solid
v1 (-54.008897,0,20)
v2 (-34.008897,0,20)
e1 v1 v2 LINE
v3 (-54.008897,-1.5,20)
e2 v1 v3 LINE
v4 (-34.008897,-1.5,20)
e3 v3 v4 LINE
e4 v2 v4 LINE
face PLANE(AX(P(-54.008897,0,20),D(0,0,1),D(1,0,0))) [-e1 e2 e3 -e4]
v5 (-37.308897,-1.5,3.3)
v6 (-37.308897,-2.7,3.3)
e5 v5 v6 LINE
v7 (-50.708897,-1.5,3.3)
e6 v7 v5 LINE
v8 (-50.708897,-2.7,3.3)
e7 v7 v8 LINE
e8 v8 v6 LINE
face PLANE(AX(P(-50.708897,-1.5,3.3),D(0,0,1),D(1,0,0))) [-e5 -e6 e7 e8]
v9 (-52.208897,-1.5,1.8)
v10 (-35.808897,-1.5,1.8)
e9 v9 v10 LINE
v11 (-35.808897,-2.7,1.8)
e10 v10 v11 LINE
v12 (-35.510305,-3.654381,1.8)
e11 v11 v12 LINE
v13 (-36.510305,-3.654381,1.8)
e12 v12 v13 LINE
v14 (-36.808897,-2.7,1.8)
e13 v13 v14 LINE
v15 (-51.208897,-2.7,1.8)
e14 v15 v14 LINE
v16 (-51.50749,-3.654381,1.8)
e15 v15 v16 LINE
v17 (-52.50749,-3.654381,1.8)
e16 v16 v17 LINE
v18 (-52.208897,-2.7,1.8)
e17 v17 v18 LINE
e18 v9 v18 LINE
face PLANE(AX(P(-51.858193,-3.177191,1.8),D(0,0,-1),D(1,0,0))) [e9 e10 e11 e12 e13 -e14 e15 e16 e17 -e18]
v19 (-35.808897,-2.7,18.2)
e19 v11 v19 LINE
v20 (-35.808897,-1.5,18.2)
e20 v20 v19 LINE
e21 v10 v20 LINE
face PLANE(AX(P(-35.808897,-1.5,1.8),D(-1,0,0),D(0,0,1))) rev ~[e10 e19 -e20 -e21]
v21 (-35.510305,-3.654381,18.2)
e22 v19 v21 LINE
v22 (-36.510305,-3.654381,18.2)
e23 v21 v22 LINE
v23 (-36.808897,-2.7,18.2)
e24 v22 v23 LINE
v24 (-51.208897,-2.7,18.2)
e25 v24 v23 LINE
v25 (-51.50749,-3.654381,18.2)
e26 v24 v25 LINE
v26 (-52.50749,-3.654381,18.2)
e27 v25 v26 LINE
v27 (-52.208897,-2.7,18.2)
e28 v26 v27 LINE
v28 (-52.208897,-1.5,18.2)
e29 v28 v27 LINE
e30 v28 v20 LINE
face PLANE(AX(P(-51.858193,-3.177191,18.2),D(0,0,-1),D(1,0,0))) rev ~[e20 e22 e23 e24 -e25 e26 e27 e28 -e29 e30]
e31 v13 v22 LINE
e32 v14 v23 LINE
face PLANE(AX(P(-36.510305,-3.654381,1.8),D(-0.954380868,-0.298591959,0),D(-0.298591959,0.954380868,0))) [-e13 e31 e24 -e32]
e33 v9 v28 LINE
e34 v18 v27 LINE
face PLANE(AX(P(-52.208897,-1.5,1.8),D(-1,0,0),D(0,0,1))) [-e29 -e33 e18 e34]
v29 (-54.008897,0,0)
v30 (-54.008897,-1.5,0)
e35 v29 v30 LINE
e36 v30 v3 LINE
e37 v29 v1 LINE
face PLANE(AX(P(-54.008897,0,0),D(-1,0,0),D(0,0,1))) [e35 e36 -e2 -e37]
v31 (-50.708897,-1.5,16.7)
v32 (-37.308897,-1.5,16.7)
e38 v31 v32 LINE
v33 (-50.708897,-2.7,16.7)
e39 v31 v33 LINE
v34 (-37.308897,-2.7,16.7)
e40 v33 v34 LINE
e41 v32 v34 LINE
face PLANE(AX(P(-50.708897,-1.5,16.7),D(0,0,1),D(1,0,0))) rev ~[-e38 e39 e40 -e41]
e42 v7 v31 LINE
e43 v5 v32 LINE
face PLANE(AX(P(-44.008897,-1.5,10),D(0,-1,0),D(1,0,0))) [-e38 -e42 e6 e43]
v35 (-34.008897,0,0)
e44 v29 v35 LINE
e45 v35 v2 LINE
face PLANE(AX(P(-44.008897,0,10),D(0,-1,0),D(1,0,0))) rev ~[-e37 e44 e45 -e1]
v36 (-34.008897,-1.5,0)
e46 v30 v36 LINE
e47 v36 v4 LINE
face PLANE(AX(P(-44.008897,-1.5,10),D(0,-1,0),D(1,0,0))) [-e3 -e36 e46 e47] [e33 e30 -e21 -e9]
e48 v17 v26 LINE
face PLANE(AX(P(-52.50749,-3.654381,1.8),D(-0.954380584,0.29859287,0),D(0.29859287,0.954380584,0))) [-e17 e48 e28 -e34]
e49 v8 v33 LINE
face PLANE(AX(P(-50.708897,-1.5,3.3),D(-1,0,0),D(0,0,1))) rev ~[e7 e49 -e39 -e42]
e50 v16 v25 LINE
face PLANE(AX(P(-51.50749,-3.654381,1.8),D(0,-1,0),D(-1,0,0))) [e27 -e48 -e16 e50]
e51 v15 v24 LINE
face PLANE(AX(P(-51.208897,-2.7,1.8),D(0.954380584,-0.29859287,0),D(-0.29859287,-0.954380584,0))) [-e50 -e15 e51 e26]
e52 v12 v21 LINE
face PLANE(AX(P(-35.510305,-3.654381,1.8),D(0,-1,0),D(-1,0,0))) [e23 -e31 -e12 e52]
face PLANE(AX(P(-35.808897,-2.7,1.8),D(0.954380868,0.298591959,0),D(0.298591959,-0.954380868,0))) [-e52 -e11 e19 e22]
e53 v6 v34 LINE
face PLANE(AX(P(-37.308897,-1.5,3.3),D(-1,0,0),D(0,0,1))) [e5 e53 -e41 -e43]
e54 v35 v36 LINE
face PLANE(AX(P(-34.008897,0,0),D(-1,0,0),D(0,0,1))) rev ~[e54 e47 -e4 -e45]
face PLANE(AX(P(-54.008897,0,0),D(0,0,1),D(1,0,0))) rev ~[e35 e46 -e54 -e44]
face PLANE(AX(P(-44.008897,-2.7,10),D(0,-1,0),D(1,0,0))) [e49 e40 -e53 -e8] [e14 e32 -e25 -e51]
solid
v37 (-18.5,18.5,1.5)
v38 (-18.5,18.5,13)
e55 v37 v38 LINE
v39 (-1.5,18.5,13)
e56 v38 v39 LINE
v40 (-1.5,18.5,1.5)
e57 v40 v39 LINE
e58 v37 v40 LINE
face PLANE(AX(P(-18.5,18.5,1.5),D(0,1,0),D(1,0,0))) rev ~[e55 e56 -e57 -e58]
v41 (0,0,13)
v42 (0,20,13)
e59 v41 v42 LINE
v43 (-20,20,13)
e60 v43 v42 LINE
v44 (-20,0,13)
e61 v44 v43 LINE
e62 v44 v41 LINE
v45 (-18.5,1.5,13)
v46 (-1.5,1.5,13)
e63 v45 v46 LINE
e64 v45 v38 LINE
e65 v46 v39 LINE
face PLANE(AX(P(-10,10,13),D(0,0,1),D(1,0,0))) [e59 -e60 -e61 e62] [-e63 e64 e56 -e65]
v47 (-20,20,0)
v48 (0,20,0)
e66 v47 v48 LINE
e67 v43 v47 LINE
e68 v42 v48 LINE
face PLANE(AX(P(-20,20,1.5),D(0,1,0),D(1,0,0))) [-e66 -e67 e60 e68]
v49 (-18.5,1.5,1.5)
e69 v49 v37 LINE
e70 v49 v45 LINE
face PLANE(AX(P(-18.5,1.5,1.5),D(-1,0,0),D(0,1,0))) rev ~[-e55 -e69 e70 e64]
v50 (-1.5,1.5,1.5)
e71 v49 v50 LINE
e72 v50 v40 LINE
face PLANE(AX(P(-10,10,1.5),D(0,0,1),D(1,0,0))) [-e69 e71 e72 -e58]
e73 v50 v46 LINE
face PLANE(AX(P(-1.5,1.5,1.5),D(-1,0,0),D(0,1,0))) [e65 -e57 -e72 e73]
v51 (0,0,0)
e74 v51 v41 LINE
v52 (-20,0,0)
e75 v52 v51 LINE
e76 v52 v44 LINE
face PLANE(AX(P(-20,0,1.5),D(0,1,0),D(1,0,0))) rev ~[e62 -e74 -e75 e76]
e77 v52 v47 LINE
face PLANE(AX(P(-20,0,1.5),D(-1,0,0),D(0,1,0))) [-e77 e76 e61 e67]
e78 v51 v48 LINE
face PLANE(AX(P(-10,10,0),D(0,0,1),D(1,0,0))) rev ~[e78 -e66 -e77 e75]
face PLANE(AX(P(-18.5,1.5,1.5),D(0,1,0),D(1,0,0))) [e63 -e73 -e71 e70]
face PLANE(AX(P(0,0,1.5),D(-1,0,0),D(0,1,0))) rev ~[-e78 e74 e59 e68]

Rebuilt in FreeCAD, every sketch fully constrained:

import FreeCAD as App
import Part
import Sketcher
from FreeCAD import Vector

doc = App.newDocument("Part")
body = doc.addObject("PartDesign::Body", "Body")

# Sketch on XY plane
sketch1 = body.newObject("Sketcher::SketchObject", "Sketch")
sketch1.AttachmentSupport = (doc.getObject("XY_Plane"), [""])
sketch1.MapMode = "FlatFace"
sketch1.addGeometry([
    Part.LineSegment(Vector(-20, 20, 0), Vector(-20, 0, 0)),
    Part.LineSegment(Vector(-20, 0, 0), Vector(0, 0, 0)),
    Part.LineSegment(Vector(0, 0, 0), Vector(0, 20, 0)),
    Part.LineSegment(Vector(0, 20, 0), Vector(-20, 20, 0)),
], False)
sketch1.addConstraint([
    Sketcher.Constraint("Coincident", 0, 2, 1, 1),
    Sketcher.Constraint("Coincident", 1, 2, 2, 1),
    Sketcher.Constraint("Coincident", 2, 2, 3, 1),
    Sketcher.Constraint("Coincident", 3, 2, 0, 1),
    Sketcher.Constraint("Vertical", 0),
    Sketcher.Constraint("Horizontal", 1),
    Sketcher.Constraint("Vertical", 2),
    Sketcher.Constraint("Horizontal", 3),
    Sketcher.Constraint("Coincident", 1, 2, -1, 1),
    Sketcher.Constraint("Equal", 3, 0),
    Sketcher.Constraint("DistanceX", 1, 1, 1, 2, 20.0),
])
pad1 = body.newObject("PartDesign::Pad", "Pad")
pad1.Profile = sketch1
pad1.Length = 1.5

# Sketch on XY plane
sketch2 = body.newObject("Sketcher::SketchObject", "Sketch001")
sketch2.AttachmentSupport = (doc.getObject("XY_Plane"), [""])
sketch2.MapMode = "FlatFace"
sketch2.AttachmentOffset = App.Placement(Vector(0, 0, 1.5), App.Rotation())
sketch2.addGeometry([
    Part.LineSegment(Vector(-20, 20, 0), Vector(-20, 0, 0)),  # 0
    Part.LineSegment(Vector(-20, 0, 0), Vector(0, 0, 0)),  # 1
    Part.LineSegment(Vector(0, 0, 0), Vector(0, 20, 0)),  # 2
    Part.LineSegment(Vector(0, 20, 0), Vector(-20, 20, 0)),  # 3
    Part.LineSegment(Vector(-2, 2, 0), Vector(-18, 2, 0)),  # 4
    Part.LineSegment(Vector(-18, 2, 0), Vector(-18, 18, 0)),  # 5
    Part.LineSegment(Vector(-18, 18, 0), Vector(-2, 18, 0)),  # 6
    Part.LineSegment(Vector(-2, 18, 0), Vector(-2, 2, 0)),  # 7
], False)
sketch2.addConstraint([
    Sketcher.Constraint("Coincident", 0, 2, 1, 1),
    Sketcher.Constraint("Coincident", 1, 2, 2, 1),
    Sketcher.Constraint("Coincident", 2, 2, 3, 1),
    Sketcher.Constraint("Coincident", 3, 2, 0, 1),
    Sketcher.Constraint("Coincident", 4, 2, 5, 1),
    Sketcher.Constraint("Coincident", 5, 2, 6, 1),
    Sketcher.Constraint("Coincident", 6, 2, 7, 1),
    Sketcher.Constraint("Coincident", 7, 2, 4, 1),
    Sketcher.Constraint("Vertical", 0),
    Sketcher.Constraint("Horizontal", 1),
    Sketcher.Constraint("Vertical", 2),
    Sketcher.Constraint("Horizontal", 3),
    Sketcher.Constraint("Horizontal", 4),
    Sketcher.Constraint("Vertical", 5),
    Sketcher.Constraint("Horizontal", 6),
    Sketcher.Constraint("Vertical", 7),
    Sketcher.Constraint("Coincident", 1, 2, -1, 1),
    Sketcher.Constraint("Equal", 3, 0),
    Sketcher.Constraint("Equal", 6, 5),
    Sketcher.Constraint("DistanceX", 1, 1, 1, 2, 20.0),
    Sketcher.Constraint("DistanceX", 4, 2, 4, 1, 17.0),
    Sketcher.Constraint("DistanceX", 4, 2, -1, 1, 18.5),
    Sketcher.Constraint("DistanceY", -1, 1, 4, 2, 1.5),
])
pad2 = body.newObject("PartDesign::Pad", "Pad001")
pad2.Profile = sketch2
pad2.Length = 11.5
body2 = doc.addObject("PartDesign::Body", "Body001")

# Sketch on XZ plane
sketch3 = body2.newObject("Sketcher::SketchObject", "Sketch002")
sketch3.AttachmentSupport = (doc.getObject("XZ_Plane001"), [""])
sketch3.MapMode = "FlatFace"
sketch3.addGeometry([
    Part.LineSegment(Vector(-54, 20, 0), Vector(-54, 0, 0)),
    Part.LineSegment(Vector(-54, 0, 0), Vector(-34, 0, 0)),
    Part.LineSegment(Vector(-34, 0, 0), Vector(-34, 20, 0)),
    Part.LineSegment(Vector(-34, 20, 0), Vector(-54, 20, 0)),
], False)
sketch3.addConstraint([
    Sketcher.Constraint("Coincident", 0, 2, 1, 1),
    Sketcher.Constraint("Coincident", 1, 2, 2, 1),
    Sketcher.Constraint("Coincident", 2, 2, 3, 1),
    Sketcher.Constraint("Coincident", 3, 2, 0, 1),
    Sketcher.Constraint("Vertical", 0),
    Sketcher.Constraint("Horizontal", 1),
    Sketcher.Constraint("Vertical", 2),
    Sketcher.Constraint("Horizontal", 3),
    Sketcher.Constraint("PointOnObject", 0, 2, -1),
    Sketcher.Constraint("Equal", 3, 0),
    Sketcher.Constraint("DistanceX", 1, 1, 1, 2, 20.0),
    Sketcher.Constraint("DistanceX", 0, 2, -1, 1, 54.008897),
])
pad3 = body2.newObject("PartDesign::Pad", "Pad002")
pad3.Profile = sketch3
pad3.Length = 1.5

# Sketch on XZ plane
sketch4 = body2.newObject("Sketcher::SketchObject", "Sketch003")
sketch4.AttachmentSupport = (doc.getObject("XZ_Plane001"), [""])
sketch4.MapMode = "FlatFace"
sketch4.AttachmentOffset = App.Placement(Vector(0, 0, 1.5), App.Rotation())
sketch4.addGeometry([
    Part.LineSegment(Vector(-52, 18, 0), Vector(-52, 2, 0)),  # 0
    Part.LineSegment(Vector(-52, 2, 0), Vector(-36, 2, 0)),  # 1
    Part.LineSegment(Vector(-36, 2, 0), Vector(-36, 18, 0)),  # 2
    Part.LineSegment(Vector(-36, 18, 0), Vector(-52, 18, 0)),  # 3
    Part.LineSegment(Vector(-37, 3, 0), Vector(-51, 3, 0)),  # 4
    Part.LineSegment(Vector(-51, 3, 0), Vector(-51, 17, 0)),  # 5
    Part.LineSegment(Vector(-51, 17, 0), Vector(-37, 17, 0)),  # 6
    Part.LineSegment(Vector(-37, 17, 0), Vector(-37, 3, 0)),  # 7
], False)
sketch4.addConstraint([
    Sketcher.Constraint("Coincident", 0, 2, 1, 1),
    Sketcher.Constraint("Coincident", 1, 2, 2, 1),
    Sketcher.Constraint("Coincident", 2, 2, 3, 1),
    Sketcher.Constraint("Coincident", 3, 2, 0, 1),
    Sketcher.Constraint("Coincident", 4, 2, 5, 1),
    Sketcher.Constraint("Coincident", 5, 2, 6, 1),
    Sketcher.Constraint("Coincident", 6, 2, 7, 1),
    Sketcher.Constraint("Coincident", 7, 2, 4, 1),
    Sketcher.Constraint("Vertical", 0),
    Sketcher.Constraint("Horizontal", 1),
    Sketcher.Constraint("Vertical", 2),
    Sketcher.Constraint("Horizontal", 3),
    Sketcher.Constraint("Horizontal", 4),
    Sketcher.Constraint("Vertical", 5),
    Sketcher.Constraint("Horizontal", 6),
    Sketcher.Constraint("Vertical", 7),
    Sketcher.Constraint("Equal", 3, 0),
    Sketcher.Constraint("Equal", 6, 5),
    Sketcher.Constraint("DistanceX", 1, 1, 1, 2, 16.4),
    Sketcher.Constraint("DistanceX", 4, 2, 4, 1, 13.4),
    Sketcher.Constraint("DistanceY", -1, 1, 0, 2, 1.8),
    Sketcher.Constraint("DistanceY", -1, 1, 4, 2, 3.3),
    Sketcher.Constraint("DistanceX", 0, 2, 4, 2, 1.5),
    Sketcher.Constraint("DistanceX", 0, 2, -1, 1, 52.208897),
])
pad4 = body2.newObject("PartDesign::Pad", "Pad003")
pad4.Profile = sketch4
pad4.Length = 1.2

# Sketch on XY plane
sketch5 = body2.newObject("Sketcher::SketchObject", "Sketch004")
sketch5.AttachmentSupport = (doc.getObject("XY_Plane001"), [""])
sketch5.MapMode = "FlatFace"
sketch5.AttachmentOffset = App.Placement(Vector(0, 0, 1.8), App.Rotation())
sketch5.addGeometry([
    Part.LineSegment(Vector(-52.5, -3.7, 0), Vector(-52.2, -2.7, 0)),  # 0
    Part.LineSegment(Vector(-52.2, -2.7, 0), Vector(-51.2, -2.7, 0)),  # 1
    Part.LineSegment(Vector(-51.2, -2.7, 0), Vector(-51.5, -3.7, 0)),  # 2
    Part.LineSegment(Vector(-51.5, -3.7, 0), Vector(-52.5, -3.7, 0)),  # 3
    Part.LineSegment(Vector(-35.5, -3.7, 0), Vector(-36.5, -3.7, 0)),  # 4
    Part.LineSegment(Vector(-36.5, -3.7, 0), Vector(-36.8, -2.7, 0)),  # 5
    Part.LineSegment(Vector(-36.8, -2.7, 0), Vector(-35.8, -2.7, 0)),  # 6
    Part.LineSegment(Vector(-35.8, -2.7, 0), Vector(-35.5, -3.7, 0)),  # 7
], False)
sketch5.addConstraint([
    Sketcher.Constraint("Coincident", 0, 2, 1, 1),
    Sketcher.Constraint("Coincident", 1, 2, 2, 1),
    Sketcher.Constraint("Coincident", 2, 2, 3, 1),
    Sketcher.Constraint("Coincident", 3, 2, 0, 1),
    Sketcher.Constraint("Coincident", 4, 2, 5, 1),
    Sketcher.Constraint("Coincident", 5, 2, 6, 1),
    Sketcher.Constraint("Coincident", 6, 2, 7, 1),
    Sketcher.Constraint("Coincident", 7, 2, 4, 1),
    Sketcher.Constraint("Horizontal", 1),
    Sketcher.Constraint("Horizontal", 3),
    Sketcher.Constraint("Horizontal", 4),
    Sketcher.Constraint("Horizontal", 6),
    Sketcher.Constraint("Parallel", 0, 2),
    Sketcher.Constraint("Parallel", 5, 7),
    Sketcher.Constraint("Horizontal", 3, 2, 4, 2),
    Sketcher.Constraint("Horizontal", 1, 2, 5, 2),
    Sketcher.Constraint("Equal", 3, 4),
    Sketcher.Constraint("Equal", 2, 5),
    Sketcher.Constraint("DistanceX", 1, 1, 1, 2, 1.0),
    Sketcher.Constraint("Distance", 0, 1.0),
    Sketcher.Constraint("DistanceY", 0, 2, -1, 1, 2.7),
    Sketcher.Constraint("DistanceX", 1, 2, 5, 2, 14.4),
    Sketcher.Constraint("DistanceX", 2, 2, -1, 1, 51.50749),
    Sketcher.Constraint("DistanceY", 2, 2, -1, 1, 3.654381),
])
pad5 = body2.newObject("PartDesign::Pad", "Pad004")
pad5.Profile = sketch5
pad5.Length = 16.4

doc.recompute()
